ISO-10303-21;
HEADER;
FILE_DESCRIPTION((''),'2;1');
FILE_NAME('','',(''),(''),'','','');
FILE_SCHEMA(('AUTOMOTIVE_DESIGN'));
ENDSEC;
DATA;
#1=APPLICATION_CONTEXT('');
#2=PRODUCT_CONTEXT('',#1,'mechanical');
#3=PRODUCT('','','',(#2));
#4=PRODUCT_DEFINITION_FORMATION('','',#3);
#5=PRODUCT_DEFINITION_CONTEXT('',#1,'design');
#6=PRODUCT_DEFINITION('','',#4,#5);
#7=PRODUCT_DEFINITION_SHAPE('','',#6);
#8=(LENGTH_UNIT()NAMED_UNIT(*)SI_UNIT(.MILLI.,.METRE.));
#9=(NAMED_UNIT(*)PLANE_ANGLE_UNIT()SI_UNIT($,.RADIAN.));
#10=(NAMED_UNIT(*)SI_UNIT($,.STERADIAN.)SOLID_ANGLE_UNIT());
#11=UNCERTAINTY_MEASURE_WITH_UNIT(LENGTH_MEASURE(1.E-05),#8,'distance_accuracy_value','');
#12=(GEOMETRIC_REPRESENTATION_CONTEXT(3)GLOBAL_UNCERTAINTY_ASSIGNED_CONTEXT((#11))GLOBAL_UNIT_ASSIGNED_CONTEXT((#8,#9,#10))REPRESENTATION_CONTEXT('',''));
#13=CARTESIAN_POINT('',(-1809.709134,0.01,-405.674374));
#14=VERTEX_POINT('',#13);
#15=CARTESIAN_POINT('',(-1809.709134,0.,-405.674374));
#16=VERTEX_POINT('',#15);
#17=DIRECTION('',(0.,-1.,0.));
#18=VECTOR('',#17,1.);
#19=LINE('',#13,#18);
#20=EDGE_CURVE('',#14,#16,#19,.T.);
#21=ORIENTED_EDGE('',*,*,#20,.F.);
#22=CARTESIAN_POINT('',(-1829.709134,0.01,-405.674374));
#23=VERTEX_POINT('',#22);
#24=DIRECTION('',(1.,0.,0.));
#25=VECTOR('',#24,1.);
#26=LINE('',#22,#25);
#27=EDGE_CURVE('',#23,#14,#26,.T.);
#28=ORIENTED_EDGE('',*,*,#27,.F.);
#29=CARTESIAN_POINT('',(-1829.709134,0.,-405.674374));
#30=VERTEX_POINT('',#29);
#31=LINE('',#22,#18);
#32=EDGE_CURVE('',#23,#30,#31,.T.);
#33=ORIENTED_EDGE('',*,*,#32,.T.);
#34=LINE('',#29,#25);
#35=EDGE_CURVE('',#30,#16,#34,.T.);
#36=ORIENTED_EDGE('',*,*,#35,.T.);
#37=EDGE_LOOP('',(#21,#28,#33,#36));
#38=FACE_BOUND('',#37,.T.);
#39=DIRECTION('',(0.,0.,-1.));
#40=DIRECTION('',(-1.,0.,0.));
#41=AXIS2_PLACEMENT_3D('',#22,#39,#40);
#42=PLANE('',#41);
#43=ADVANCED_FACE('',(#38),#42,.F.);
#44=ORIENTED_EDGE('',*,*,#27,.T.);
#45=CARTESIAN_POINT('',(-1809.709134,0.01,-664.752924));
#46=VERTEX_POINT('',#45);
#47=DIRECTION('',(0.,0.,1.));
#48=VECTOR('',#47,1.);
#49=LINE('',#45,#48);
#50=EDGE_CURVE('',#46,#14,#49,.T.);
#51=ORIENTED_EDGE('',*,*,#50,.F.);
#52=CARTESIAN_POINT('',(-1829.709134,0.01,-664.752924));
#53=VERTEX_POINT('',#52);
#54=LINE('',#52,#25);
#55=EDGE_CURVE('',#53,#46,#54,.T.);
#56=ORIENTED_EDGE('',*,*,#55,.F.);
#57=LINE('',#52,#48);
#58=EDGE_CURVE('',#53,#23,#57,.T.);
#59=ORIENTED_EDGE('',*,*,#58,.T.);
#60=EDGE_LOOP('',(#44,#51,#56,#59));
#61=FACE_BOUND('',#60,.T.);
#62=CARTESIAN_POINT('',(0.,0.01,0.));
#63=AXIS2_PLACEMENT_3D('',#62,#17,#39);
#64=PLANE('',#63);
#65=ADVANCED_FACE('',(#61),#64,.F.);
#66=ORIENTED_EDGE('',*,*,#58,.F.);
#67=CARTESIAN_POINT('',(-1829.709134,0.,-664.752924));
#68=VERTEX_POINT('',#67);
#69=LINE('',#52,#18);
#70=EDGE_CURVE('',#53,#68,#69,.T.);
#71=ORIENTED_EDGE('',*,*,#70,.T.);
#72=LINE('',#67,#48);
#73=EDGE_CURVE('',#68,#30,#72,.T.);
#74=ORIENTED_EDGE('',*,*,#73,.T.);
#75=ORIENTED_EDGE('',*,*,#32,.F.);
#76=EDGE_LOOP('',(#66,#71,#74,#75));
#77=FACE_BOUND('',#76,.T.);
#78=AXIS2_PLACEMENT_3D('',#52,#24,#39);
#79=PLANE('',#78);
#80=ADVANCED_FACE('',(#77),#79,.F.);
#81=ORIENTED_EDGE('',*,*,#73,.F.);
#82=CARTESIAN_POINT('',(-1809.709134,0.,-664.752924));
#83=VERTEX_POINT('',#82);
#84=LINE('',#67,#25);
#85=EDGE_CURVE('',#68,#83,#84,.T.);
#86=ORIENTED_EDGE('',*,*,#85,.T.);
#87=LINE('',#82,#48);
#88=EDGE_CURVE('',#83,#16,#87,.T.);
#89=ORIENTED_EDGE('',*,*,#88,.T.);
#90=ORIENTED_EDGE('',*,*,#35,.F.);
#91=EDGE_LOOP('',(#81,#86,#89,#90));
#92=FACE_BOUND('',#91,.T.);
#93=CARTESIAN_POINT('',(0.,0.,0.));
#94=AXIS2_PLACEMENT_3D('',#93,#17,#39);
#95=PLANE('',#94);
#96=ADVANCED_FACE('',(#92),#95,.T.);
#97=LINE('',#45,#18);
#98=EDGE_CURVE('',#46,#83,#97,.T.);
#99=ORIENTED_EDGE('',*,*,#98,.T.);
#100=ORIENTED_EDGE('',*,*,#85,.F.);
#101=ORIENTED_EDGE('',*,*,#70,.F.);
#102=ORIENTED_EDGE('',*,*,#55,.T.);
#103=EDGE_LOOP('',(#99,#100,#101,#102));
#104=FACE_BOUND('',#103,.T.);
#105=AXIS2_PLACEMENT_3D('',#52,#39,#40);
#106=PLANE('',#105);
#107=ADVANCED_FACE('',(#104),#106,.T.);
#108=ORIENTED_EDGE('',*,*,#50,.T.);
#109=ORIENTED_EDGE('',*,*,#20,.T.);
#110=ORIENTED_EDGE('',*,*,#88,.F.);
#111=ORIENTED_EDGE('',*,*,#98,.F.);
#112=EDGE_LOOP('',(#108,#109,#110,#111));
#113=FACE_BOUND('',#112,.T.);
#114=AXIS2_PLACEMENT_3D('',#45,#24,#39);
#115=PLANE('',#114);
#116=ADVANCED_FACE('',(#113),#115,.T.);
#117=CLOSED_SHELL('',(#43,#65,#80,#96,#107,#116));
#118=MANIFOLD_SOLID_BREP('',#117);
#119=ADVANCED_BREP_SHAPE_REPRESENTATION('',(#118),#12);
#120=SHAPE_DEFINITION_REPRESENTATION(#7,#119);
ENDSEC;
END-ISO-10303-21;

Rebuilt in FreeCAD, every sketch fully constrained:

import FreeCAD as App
import Part
import Sketcher

V = App.Vector
Q = App.Units.Quantity


def add_polygon(sketch, points):
    """Adds a closed chain of lines whose ends are joined by coincident constraints."""
    first, n = sketch.GeometryCount, len(points)
    for a, b in zip(points, points[1:] + points[:1]):
        sketch.addGeometry(Part.LineSegment(App.Vector(*a, 0), App.Vector(*b, 0)), False)
    for i in range(n):
        sketch.addConstraint(Sketcher.Constraint("Coincident", first + i, 2, first + (i + 1) % n, 1))

doc = App.newDocument("Part")
params = doc.addObject("Spreadsheet::Sheet", "Params")
for row, (alias, value) in enumerate([
    ("sketch1_width", "20 mm"),
    ("pad1_length", "0.01 mm"),
], start=1):
    params.set(f"A{row}", alias)
    params.set(f"B{row}", "=" + value)
    params.setAlias(f"B{row}", alias)

body = doc.addObject("PartDesign::Body", "Body")

sketch1 = body.newObject("Sketcher::SketchObject", "Sketch")
sketch1.AttachmentSupport = (doc.getObject("XZ_Plane"), [""])
sketch1.MapMode = "FlatFace"
add_polygon(sketch1, [(-1829.709134, -664.752924), (-1829.709134, -405.674374), (-1809.709134, -405.674374), (-1809.709134, -664.752924)])
sketch1.addConstraint([
    Sketcher.Constraint("Vertical", 0),
    Sketcher.Constraint("Horizontal", 1),
    Sketcher.Constraint("Vertical", 2),
    Sketcher.Constraint("Horizontal", 3),
    Sketcher.Constraint("DistanceX", 1, 1, 1, 2, Q("20 mm")),
    Sketcher.Constraint("DistanceY", 0, 1, 0, 2, Q("259.07855 mm")),
    Sketcher.Constraint("DistanceX", 0, 2, -1, 1, Q("1829.709134 mm")),
    Sketcher.Constraint("DistanceY", 0, 2, -1, 1, Q("405.674374 mm")),
])
sketch1.setExpression("Constraints[8]", "Params.sketch1_width")
pad1 = body.newObject("PartDesign::Pad", "Pad")
pad1.Profile = sketch1
pad1.setExpression("Length", "Params.pad1_length")
pad1.Reversed = True

doc.recompute()
